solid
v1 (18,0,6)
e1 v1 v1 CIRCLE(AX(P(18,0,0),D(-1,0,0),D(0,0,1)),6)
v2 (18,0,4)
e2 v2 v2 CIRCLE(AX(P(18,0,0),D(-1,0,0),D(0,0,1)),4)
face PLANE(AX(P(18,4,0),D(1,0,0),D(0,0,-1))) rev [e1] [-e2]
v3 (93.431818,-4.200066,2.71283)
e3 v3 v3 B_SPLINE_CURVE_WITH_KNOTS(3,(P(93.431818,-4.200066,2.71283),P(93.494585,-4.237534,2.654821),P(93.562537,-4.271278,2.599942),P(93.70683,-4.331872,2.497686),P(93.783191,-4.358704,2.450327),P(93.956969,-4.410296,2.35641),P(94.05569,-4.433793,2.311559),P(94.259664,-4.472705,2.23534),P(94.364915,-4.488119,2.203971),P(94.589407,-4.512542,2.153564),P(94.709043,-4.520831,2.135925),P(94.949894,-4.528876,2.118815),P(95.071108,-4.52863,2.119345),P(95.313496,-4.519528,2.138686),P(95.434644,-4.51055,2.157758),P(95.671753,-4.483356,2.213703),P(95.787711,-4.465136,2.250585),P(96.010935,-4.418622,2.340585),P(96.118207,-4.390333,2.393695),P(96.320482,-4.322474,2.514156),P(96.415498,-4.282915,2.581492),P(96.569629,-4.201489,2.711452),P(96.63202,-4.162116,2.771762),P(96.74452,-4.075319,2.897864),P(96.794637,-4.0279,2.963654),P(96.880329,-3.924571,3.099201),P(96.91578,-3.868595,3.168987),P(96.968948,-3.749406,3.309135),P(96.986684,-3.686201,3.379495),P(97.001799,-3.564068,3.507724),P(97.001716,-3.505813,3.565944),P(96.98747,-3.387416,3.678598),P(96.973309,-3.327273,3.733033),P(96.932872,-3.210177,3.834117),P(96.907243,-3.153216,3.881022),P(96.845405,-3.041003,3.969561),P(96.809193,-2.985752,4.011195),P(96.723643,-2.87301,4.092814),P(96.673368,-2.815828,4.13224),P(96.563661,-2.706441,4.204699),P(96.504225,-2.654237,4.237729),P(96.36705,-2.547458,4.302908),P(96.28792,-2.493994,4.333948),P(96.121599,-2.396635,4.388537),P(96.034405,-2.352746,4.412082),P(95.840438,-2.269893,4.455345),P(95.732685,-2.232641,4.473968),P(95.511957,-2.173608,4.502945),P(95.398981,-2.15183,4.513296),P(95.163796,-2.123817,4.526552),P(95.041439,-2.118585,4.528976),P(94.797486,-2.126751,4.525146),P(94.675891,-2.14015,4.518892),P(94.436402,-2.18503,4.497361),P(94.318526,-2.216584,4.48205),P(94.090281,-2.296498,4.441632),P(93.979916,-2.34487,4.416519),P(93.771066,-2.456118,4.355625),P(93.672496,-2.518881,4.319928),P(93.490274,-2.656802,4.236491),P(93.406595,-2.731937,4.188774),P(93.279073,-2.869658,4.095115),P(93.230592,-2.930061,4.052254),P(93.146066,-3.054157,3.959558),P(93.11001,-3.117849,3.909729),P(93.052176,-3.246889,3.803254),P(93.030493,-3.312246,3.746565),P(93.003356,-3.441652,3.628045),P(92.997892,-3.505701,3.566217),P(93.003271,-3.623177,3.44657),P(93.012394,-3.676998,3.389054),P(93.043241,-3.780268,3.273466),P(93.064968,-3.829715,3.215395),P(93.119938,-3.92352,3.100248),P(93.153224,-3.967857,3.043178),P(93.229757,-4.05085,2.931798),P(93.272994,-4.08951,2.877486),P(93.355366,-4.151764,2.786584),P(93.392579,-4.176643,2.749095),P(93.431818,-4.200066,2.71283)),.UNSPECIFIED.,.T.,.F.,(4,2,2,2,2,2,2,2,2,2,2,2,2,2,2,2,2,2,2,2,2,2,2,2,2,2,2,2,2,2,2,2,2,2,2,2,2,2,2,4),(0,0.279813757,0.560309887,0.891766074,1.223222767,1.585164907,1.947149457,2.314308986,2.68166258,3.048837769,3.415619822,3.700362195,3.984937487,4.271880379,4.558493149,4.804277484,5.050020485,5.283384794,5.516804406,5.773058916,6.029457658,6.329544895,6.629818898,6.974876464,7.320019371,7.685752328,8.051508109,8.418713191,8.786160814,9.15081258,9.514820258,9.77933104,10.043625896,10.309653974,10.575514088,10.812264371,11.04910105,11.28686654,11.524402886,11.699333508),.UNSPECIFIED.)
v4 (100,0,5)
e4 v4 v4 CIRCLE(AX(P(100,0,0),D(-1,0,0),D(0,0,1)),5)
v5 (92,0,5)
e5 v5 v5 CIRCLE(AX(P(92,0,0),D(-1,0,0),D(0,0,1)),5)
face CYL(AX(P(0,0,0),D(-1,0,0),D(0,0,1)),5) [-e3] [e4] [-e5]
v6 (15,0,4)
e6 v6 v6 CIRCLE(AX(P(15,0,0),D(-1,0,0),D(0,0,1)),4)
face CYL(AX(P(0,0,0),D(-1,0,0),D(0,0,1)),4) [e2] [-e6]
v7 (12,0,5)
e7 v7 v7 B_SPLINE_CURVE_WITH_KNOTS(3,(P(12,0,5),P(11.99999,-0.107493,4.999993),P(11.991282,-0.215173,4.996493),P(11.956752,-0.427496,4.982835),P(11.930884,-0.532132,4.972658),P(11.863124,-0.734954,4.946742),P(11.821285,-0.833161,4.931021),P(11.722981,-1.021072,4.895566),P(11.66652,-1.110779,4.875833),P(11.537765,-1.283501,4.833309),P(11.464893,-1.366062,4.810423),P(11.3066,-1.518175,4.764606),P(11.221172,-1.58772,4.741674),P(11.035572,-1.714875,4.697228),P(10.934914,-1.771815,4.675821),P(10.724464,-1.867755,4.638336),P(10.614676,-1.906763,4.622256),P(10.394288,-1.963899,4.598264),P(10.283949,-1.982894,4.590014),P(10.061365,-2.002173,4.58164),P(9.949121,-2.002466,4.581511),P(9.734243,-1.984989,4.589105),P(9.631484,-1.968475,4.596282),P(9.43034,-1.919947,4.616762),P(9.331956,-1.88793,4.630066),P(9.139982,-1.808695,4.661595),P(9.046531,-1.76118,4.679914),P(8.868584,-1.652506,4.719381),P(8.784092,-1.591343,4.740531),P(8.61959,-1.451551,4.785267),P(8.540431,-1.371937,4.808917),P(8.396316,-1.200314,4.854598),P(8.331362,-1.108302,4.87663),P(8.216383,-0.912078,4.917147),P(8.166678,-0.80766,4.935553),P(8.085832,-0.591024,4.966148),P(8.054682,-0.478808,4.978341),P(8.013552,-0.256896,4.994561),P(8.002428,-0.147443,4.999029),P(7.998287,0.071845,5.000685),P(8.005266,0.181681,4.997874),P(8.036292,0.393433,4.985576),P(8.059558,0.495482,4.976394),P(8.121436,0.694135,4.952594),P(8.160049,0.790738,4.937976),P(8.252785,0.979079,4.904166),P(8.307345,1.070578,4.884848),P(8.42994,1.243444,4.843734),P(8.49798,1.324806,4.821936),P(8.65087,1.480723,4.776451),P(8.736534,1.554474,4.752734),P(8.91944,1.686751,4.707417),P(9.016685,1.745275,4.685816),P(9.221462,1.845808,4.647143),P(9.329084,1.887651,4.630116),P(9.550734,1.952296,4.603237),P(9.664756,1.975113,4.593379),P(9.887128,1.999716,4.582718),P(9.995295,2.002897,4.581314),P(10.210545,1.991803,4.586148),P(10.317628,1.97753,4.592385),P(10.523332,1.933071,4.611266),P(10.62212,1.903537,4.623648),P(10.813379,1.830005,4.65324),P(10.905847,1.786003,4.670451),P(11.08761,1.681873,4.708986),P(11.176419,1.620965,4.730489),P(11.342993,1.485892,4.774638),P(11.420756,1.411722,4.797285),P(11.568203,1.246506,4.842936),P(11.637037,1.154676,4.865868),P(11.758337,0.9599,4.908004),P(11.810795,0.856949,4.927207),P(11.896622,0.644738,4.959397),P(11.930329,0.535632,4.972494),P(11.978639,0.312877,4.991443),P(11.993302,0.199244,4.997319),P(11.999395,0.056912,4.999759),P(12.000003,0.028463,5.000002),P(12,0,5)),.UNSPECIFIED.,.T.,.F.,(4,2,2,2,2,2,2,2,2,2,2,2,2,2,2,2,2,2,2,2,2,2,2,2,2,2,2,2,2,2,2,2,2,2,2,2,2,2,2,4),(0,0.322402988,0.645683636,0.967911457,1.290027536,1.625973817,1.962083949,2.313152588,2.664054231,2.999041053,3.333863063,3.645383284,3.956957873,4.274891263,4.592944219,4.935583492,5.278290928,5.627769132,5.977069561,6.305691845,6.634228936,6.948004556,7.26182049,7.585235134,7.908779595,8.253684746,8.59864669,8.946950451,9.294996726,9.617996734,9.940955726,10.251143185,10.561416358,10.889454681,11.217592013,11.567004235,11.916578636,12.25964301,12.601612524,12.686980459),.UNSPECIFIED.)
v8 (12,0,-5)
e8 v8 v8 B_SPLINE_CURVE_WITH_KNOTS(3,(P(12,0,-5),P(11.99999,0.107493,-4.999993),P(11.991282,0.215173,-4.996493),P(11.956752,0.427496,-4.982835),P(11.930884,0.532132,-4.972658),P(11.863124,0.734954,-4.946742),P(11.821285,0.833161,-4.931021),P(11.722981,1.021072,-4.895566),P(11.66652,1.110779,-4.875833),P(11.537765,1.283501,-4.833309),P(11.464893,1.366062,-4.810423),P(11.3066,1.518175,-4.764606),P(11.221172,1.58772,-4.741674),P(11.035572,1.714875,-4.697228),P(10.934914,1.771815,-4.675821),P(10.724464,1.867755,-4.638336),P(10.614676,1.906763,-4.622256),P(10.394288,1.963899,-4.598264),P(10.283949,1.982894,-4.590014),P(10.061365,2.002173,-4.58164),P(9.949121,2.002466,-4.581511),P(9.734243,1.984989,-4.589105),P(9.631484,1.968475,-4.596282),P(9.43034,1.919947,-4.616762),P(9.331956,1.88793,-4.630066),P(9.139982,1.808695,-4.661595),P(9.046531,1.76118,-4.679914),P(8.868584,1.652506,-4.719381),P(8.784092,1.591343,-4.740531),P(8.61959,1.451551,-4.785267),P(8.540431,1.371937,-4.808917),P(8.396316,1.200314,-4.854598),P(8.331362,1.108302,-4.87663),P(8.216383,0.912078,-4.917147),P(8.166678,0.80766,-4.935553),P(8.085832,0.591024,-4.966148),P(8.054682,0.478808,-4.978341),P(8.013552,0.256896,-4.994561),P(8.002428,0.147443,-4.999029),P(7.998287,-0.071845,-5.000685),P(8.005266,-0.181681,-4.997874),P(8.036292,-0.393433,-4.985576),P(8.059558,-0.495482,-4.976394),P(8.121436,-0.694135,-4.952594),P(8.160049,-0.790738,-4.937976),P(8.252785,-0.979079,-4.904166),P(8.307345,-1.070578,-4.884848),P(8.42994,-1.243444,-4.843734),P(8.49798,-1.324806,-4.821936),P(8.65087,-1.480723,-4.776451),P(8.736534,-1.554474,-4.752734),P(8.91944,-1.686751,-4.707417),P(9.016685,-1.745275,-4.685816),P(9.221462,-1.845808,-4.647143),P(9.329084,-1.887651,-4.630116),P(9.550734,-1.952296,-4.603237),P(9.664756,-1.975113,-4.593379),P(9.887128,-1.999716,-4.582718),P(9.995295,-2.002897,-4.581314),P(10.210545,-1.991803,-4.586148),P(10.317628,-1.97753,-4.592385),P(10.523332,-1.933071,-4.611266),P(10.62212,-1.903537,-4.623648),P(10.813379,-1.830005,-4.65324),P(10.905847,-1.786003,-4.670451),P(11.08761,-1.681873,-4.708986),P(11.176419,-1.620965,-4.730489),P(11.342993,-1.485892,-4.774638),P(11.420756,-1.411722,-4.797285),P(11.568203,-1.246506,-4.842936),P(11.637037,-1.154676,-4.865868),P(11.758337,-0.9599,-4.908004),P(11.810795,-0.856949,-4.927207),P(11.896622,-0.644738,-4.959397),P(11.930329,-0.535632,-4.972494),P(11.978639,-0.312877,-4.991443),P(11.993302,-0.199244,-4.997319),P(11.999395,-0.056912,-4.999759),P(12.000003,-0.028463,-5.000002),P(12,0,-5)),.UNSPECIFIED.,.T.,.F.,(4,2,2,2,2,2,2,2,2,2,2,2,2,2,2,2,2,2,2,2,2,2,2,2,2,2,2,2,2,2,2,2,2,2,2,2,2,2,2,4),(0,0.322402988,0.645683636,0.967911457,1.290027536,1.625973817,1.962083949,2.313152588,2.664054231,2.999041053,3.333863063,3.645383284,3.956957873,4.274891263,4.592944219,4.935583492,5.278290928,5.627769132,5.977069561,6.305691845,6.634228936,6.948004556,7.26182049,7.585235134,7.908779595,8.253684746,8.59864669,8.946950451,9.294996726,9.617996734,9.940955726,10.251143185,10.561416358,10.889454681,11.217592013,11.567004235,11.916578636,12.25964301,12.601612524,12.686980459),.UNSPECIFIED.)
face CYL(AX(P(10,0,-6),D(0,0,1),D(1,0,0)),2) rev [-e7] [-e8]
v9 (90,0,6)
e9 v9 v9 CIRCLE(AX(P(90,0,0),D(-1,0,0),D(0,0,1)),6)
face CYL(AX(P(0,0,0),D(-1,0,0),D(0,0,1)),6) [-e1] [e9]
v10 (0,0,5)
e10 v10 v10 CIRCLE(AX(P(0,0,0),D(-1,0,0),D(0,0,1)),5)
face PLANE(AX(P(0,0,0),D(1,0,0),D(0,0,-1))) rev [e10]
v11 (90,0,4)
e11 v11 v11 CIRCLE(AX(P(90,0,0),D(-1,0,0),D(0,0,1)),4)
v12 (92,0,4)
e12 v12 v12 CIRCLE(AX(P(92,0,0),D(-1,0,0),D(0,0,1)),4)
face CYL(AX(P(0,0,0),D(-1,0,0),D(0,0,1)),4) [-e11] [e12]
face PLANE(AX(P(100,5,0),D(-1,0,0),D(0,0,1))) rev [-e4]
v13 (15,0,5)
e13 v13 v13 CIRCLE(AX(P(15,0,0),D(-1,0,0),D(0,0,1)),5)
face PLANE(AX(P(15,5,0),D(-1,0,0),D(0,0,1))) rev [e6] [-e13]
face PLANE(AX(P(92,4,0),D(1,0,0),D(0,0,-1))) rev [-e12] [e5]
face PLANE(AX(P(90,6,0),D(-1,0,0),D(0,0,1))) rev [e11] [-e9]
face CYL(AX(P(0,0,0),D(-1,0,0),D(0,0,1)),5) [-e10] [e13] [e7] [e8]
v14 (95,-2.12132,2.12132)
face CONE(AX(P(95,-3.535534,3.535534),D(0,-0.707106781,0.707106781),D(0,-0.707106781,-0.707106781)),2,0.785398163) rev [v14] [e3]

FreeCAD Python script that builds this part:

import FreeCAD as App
import Part
import Sketcher
from FreeCAD import Vector
Q = App.Units.Quantity

doc = App.newDocument("Part")
body = doc.addObject("PartDesign::Body", "Body")

sketch1 = body.newObject("Sketcher::SketchObject", "Sketch")
sketch1.AttachmentSupport = (doc.getObject("XY_Plane"), [""])
sketch1.MapMode = "FlatFace"
sketch1.addGeometry(Part.LineSegment(Vector(0, 5, 0), Vector(0, 0, 0)), False)
sketch1.addGeometry(Part.LineSegment(Vector(0, 0, 0), Vector(100, 0, 0)), False)
sketch1.addGeometry(Part.LineSegment(Vector(100, 0, 0), Vector(100, 5, 0)), False)
sketch1.addGeometry(Part.LineSegment(Vector(100, 5, 0), Vector(92, 5, 0)), False)
sketch1.addGeometry(Part.LineSegment(Vector(92, 5, 0), Vector(92, 4, 0)), False)
sketch1.addGeometry(Part.LineSegment(Vector(92, 4, 0), Vector(90, 4, 0)), False)
sketch1.addGeometry(Part.LineSegment(Vector(90, 4, 0), Vector(90, 6, 0)), False)
sketch1.addGeometry(Part.LineSegment(Vector(90, 6, 0), Vector(18, 6, 0)), False)
sketch1.addGeometry(Part.LineSegment(Vector(18, 6, 0), Vector(18, 4, 0)), False)
sketch1.addGeometry(Part.LineSegment(Vector(18, 4, 0), Vector(15, 4, 0)), False)
sketch1.addGeometry(Part.LineSegment(Vector(15, 4, 0), Vector(15, 5, 0)), False)
sketch1.addGeometry(Part.LineSegment(Vector(15, 5, 0), Vector(0, 5, 0)), False)
sketch1.addConstraint(Sketcher.Constraint("Coincident", 0, 2, 1, 1))
sketch1.addConstraint(Sketcher.Constraint("Coincident", 1, 2, 2, 1))
sketch1.addConstraint(Sketcher.Constraint("Coincident", 2, 2, 3, 1))
sketch1.addConstraint(Sketcher.Constraint("Coincident", 3, 2, 4, 1))
sketch1.addConstraint(Sketcher.Constraint("Coincident", 4, 2, 5, 1))
sketch1.addConstraint(Sketcher.Constraint("Coincident", 5, 2, 6, 1))
sketch1.addConstraint(Sketcher.Constraint("Coincident", 6, 2, 7, 1))
sketch1.addConstraint(Sketcher.Constraint("Coincident", 7, 2, 8, 1))
sketch1.addConstraint(Sketcher.Constraint("Coincident", 8, 2, 9, 1))
sketch1.addConstraint(Sketcher.Constraint("Coincident", 9, 2, 10, 1))
sketch1.addConstraint(Sketcher.Constraint("Coincident", 10, 2, 11, 1))
sketch1.addConstraint(Sketcher.Constraint("Coincident", 11, 2, 0, 1))
sketch1.addConstraint(Sketcher.Constraint("Vertical", 0))
sketch1.addConstraint(Sketcher.Constraint("Horizontal", 1))
sketch1.addConstraint(Sketcher.Constraint("Vertical", 2))
sketch1.addConstraint(Sketcher.Constraint("Horizontal", 3))
sketch1.addConstraint(Sketcher.Constraint("Vertical", 4))
sketch1.addConstraint(Sketcher.Constraint("Horizontal", 5))
sketch1.addConstraint(Sketcher.Constraint("Vertical", 6))
sketch1.addConstraint(Sketcher.Constraint("Horizontal", 7))
sketch1.addConstraint(Sketcher.Constraint("Vertical", 8))
sketch1.addConstraint(Sketcher.Constraint("Horizontal", 9))
sketch1.addConstraint(Sketcher.Constraint("Vertical", 10))
sketch1.addConstraint(Sketcher.Constraint("Horizontal", 11))
sketch1.addConstraint(Sketcher.Constraint("Coincident", 0, 2, -1, 1))
sketch1.addConstraint(Sketcher.Constraint("Horizontal", 5, 2, 8, 2))
sketch1.addConstraint(Sketcher.Constraint("Horizontal", 3, 2, 10, 2))
sketch1.addConstraint(Sketcher.Constraint("Equal", 5, 6))
sketch1.addConstraint(Sketcher.Constraint("DistanceX", 1, 1, 1, 2, Q("100 mm")))
sketch1.addConstraint(Sketcher.Constraint("DistanceX", 3, 2, 3, 1, Q("8 mm")))
sketch1.addConstraint(Sketcher.Constraint("DistanceX", 5, 2, 5, 1, Q("2 mm")))
sketch1.addConstraint(Sketcher.Constraint("DistanceX", 7, 2, 7, 1, Q("72 mm")))
sketch1.addConstraint(Sketcher.Constraint("DistanceX", 9, 2, 9, 1, Q("3 mm")))
sketch1.addConstraint(Sketcher.Constraint("DistanceY", 0, 2, 0, 1, Q("5 mm")))
sketch1.addConstraint(Sketcher.Constraint("DistanceY", 4, 2, 4, 1, Q("1 mm")))
revolution = body.newObject("PartDesign::Revolution", "Revolution")
revolution.Profile = sketch1
revolution.ReferenceAxis = (sketch1, ["H_Axis"])
revolution.Angle = 360

sketch2 = body.newObject("Sketcher::SketchObject", "Sketch001")
sketch2.AttachmentSupport = (doc.getObject("XY_Plane"), [""])
sketch2.MapMode = "FlatFace"
sketch2.addGeometry(Part.Circle(Vector(10, 0, 0), Vector(0, 0, 1), 2), False)
sketch2.addConstraint(Sketcher.Constraint("PointOnObject", 0, 3, -1))
sketch2.addConstraint(Sketcher.Constraint("Diameter", 0, Q("4 mm")))
sketch2.addConstraint(Sketcher.Constraint("DistanceX", -1, 1, 0, 3, Q("10 mm")))
pocket1 = body.newObject("PartDesign::Pocket", "Pocket")
pocket1.Profile = sketch2
pocket1.Type = "ThroughAll"
pocket1.Midplane = True

sketch3 = body.newObject("Sketcher::SketchObject", "Sketch002")
sketch3.AttachmentSupport = (doc.getObject("YZ_Plane"), [""])
sketch3.MapMode = "FlatFace"
sketch3.AttachmentOffset = App.Placement(Vector(0, 0, 95), App.Rotation())
sketch3.addGeometry(Part.LineSegment(Vector(-4.949747, 2.12132, 0), Vector(-2.12132, 2.12132, 0)), False)
sketch3.addGeometry(Part.LineSegment(Vector(-2.12132, 2.12132, 0), Vector(-3.535534, 3.535534, 0)), False)
sketch3.addGeometry(Part.LineSegment(Vector(-3.535534, 3.535534, 0), Vector(-4.949747, 2.12132, 0)), False)
sketch3.addGeometry(Part.LineSegment(Vector(-2.12132, 2.12132, 0), Vector(-3.535534, 3.535534, 0)), True)
sketch3.addConstraint(Sketcher.Constraint("Coincident", 0, 2, 1, 1))
sketch3.addConstraint(Sketcher.Constraint("Coincident", 1, 2, 2, 1))
sketch3.addConstraint(Sketcher.Constraint("Coincident", 2, 2, 0, 1))
sketch3.addConstraint(Sketcher.Constraint("Horizontal", 0))
sketch3.addConstraint(Sketcher.Constraint("Coincident", 3, 1, 0, 2))
sketch3.addConstraint(Sketcher.Constraint("Coincident", 3, 2, 1, 2))
sketch3.addConstraint(Sketcher.Constraint("Perpendicular", 1, 2))
sketch3.addConstraint(Sketcher.Constraint("Equal", 1, 2))
sketch3.addConstraint(Sketcher.Constraint("Distance", 1, Q("2 mm")))
sketch3.addConstraint(Sketcher.Constraint("DistanceX", 0, 2, -1, 1, Q("2.12132 mm")))
sketch3.addConstraint(Sketcher.Constraint("DistanceY", -1, 1, 0, 2, Q("2.12132 mm")))
groove = body.newObject("PartDesign::Groove", "Groove")
groove.Profile = sketch3
groove.ReferenceAxis = (sketch3, ["Axis0"])
groove.Angle = 360

doc.recompute()
